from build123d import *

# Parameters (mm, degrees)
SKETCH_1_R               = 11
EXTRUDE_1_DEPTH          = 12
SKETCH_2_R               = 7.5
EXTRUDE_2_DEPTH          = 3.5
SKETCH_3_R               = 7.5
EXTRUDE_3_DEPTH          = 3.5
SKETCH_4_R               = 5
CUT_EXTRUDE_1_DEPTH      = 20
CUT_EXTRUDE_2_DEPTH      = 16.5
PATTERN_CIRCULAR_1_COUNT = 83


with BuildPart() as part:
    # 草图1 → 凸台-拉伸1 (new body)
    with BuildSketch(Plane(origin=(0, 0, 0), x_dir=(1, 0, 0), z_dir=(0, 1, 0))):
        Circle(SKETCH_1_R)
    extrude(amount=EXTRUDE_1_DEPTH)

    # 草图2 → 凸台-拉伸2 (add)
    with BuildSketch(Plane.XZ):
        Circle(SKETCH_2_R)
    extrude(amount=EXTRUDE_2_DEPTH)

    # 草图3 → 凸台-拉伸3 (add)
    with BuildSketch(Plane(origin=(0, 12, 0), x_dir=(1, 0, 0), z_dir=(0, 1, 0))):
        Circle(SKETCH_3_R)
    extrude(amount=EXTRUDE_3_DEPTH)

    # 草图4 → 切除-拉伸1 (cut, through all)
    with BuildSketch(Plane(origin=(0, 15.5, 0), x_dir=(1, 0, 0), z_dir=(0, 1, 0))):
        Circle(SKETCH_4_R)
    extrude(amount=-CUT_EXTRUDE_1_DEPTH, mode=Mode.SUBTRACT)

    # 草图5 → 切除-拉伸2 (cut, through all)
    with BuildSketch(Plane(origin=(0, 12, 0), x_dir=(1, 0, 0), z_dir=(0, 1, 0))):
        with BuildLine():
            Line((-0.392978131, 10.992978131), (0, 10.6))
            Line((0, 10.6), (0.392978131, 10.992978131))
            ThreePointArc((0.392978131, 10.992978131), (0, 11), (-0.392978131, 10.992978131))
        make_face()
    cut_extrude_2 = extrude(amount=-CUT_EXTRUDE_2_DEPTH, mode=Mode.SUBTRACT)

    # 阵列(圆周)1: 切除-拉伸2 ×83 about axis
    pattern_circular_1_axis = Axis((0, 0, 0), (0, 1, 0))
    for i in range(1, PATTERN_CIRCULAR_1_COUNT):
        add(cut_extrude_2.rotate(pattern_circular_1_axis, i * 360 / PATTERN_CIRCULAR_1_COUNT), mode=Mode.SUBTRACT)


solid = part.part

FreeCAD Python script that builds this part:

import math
import FreeCAD as App
import Part
import Sketcher

V = App.Vector
Q = App.Units.Quantity

doc = App.newDocument("Part")
body = doc.addObject("PartDesign::Body", "Body")

sketch1 = body.newObject("Sketcher::SketchObject", "Sketch")
sketch1.AttachmentSupport = (doc.getObject("XZ_Plane"), [""])
sketch1.MapMode = "FlatFace"
sketch1.addGeometry(Part.Circle(V(0, 0, 0), V(0, 0, 1), 11), False)
sketch1.addConstraint([
    Sketcher.Constraint("Coincident", 0, 3, -1, 1),
    Sketcher.Constraint("Diameter", 0, Q("22 mm")),
])
pad1 = body.newObject("PartDesign::Pad", "Pad")
pad1.Profile = sketch1
pad1.Length = 12
pad1.Reversed = True

sketch2 = body.newObject("Sketcher::SketchObject", "Sketch001")
sketch2.AttachmentSupport = (doc.getObject("XZ_Plane"), [""])
sketch2.MapMode = "FlatFace"
sketch2.addGeometry(Part.Circle(V(0, 0, 0), V(0, 0, 1), 8), False)
sketch2.addConstraint([
    Sketcher.Constraint("Coincident", 0, 3, -1, 1),
    Sketcher.Constraint("Diameter", 0, Q("15 mm")),
])
pad2 = body.newObject("PartDesign::Pad", "Pad001")
pad2.Profile = sketch2
pad2.Length = 3.5

sketch3 = body.newObject("Sketcher::SketchObject", "Sketch002")
sketch3.AttachmentSupport = (doc.getObject("XZ_Plane"), [""])
sketch3.MapMode = "FlatFace"
sketch3.AttachmentOffset = App.Placement(V(0, 0, -12), App.Rotation())
sketch3.addGeometry(Part.Circle(V(0, 0, 0), V(0, 0, 1), 8), False)
sketch3.addConstraint([
    Sketcher.Constraint("Coincident", 0, 3, -1, 1),
    Sketcher.Constraint("Diameter", 0, Q("15 mm")),
])
pad3 = body.newObject("PartDesign::Pad", "Pad002")
pad3.Profile = sketch3
pad3.Length = 3.5
pad3.Reversed = True

sketch4 = body.newObject("Sketcher::SketchObject", "Sketch003")
sketch4.AttachmentSupport = (doc.getObject("XZ_Plane"), [""])
sketch4.MapMode = "FlatFace"
sketch4.AttachmentOffset = App.Placement(V(0, 0, -15.5), App.Rotation())
sketch4.addGeometry(Part.Circle(V(0, 0, 0), V(0, 0, 1), 5), False)
sketch4.addConstraint([
    Sketcher.Constraint("Coincident", 0, 3, -1, 1),
    Sketcher.Constraint("Diameter", 0, Q("10 mm")),
])
pocket1 = body.newObject("PartDesign::Pocket", "Pocket")
pocket1.Profile = sketch4
pocket1.Type = "ThroughAll"
pocket1.Reversed = True

sketch5 = body.newObject("Sketcher::SketchObject", "Sketch004")
sketch5.AttachmentSupport = (doc.getObject("XZ_Plane"), [""])
sketch5.MapMode = "FlatFace"
sketch5.AttachmentOffset = App.Placement(V(0, 0, -12), App.Rotation())
sketch5.addGeometry([
    Part.LineSegment(V(-0.4, -11, 0), V(0, -10.6, 0)),
    Part.LineSegment(V(0, -10.6, 0), V(0.4, -11, 0)),
    Part.ArcOfCircle(Part.Circle(V(0, 0, 0), V(0, 0, 1), 11), math.radians(-92.05), math.radians(-87.95)),
], False)
sketch5.addConstraint([
    Sketcher.Constraint("Coincident", 0, 2, 1, 1),
    Sketcher.Constraint("Coincident", 1, 2, 2, 2),
    Sketcher.Constraint("Coincident", 2, 1, 0, 1),
    Sketcher.Constraint("Coincident", 2, 3, -1, 1),
    Sketcher.Constraint("PointOnObject", 0, 2, -2),
    Sketcher.Constraint("Perpendicular", 0, 1),
    Sketcher.Constraint("Horizontal", 1, 2, 2, 1),
    Sketcher.Constraint("Radius", 2, Q("11 mm")),
    Sketcher.Constraint("DistanceY", 0, 2, -1, 1, Q("10.6 mm")),
])
pocket2 = body.newObject("PartDesign::Pocket", "Pocket001")
pocket2.Profile = sketch5
pocket2.Type = "ThroughAll"
pocket2.Reversed = True
doc.recompute()

polarpattern = body.newObject("PartDesign::PolarPattern", "PolarPattern")
polarpattern.Originals = [pocket2]
polarpattern.Axis = (doc.getObject("Y_Axis"), [""])
polarpattern.Angle = 360
polarpattern.Occurrences = 83
body.Tip = polarpattern

doc.recompute()
